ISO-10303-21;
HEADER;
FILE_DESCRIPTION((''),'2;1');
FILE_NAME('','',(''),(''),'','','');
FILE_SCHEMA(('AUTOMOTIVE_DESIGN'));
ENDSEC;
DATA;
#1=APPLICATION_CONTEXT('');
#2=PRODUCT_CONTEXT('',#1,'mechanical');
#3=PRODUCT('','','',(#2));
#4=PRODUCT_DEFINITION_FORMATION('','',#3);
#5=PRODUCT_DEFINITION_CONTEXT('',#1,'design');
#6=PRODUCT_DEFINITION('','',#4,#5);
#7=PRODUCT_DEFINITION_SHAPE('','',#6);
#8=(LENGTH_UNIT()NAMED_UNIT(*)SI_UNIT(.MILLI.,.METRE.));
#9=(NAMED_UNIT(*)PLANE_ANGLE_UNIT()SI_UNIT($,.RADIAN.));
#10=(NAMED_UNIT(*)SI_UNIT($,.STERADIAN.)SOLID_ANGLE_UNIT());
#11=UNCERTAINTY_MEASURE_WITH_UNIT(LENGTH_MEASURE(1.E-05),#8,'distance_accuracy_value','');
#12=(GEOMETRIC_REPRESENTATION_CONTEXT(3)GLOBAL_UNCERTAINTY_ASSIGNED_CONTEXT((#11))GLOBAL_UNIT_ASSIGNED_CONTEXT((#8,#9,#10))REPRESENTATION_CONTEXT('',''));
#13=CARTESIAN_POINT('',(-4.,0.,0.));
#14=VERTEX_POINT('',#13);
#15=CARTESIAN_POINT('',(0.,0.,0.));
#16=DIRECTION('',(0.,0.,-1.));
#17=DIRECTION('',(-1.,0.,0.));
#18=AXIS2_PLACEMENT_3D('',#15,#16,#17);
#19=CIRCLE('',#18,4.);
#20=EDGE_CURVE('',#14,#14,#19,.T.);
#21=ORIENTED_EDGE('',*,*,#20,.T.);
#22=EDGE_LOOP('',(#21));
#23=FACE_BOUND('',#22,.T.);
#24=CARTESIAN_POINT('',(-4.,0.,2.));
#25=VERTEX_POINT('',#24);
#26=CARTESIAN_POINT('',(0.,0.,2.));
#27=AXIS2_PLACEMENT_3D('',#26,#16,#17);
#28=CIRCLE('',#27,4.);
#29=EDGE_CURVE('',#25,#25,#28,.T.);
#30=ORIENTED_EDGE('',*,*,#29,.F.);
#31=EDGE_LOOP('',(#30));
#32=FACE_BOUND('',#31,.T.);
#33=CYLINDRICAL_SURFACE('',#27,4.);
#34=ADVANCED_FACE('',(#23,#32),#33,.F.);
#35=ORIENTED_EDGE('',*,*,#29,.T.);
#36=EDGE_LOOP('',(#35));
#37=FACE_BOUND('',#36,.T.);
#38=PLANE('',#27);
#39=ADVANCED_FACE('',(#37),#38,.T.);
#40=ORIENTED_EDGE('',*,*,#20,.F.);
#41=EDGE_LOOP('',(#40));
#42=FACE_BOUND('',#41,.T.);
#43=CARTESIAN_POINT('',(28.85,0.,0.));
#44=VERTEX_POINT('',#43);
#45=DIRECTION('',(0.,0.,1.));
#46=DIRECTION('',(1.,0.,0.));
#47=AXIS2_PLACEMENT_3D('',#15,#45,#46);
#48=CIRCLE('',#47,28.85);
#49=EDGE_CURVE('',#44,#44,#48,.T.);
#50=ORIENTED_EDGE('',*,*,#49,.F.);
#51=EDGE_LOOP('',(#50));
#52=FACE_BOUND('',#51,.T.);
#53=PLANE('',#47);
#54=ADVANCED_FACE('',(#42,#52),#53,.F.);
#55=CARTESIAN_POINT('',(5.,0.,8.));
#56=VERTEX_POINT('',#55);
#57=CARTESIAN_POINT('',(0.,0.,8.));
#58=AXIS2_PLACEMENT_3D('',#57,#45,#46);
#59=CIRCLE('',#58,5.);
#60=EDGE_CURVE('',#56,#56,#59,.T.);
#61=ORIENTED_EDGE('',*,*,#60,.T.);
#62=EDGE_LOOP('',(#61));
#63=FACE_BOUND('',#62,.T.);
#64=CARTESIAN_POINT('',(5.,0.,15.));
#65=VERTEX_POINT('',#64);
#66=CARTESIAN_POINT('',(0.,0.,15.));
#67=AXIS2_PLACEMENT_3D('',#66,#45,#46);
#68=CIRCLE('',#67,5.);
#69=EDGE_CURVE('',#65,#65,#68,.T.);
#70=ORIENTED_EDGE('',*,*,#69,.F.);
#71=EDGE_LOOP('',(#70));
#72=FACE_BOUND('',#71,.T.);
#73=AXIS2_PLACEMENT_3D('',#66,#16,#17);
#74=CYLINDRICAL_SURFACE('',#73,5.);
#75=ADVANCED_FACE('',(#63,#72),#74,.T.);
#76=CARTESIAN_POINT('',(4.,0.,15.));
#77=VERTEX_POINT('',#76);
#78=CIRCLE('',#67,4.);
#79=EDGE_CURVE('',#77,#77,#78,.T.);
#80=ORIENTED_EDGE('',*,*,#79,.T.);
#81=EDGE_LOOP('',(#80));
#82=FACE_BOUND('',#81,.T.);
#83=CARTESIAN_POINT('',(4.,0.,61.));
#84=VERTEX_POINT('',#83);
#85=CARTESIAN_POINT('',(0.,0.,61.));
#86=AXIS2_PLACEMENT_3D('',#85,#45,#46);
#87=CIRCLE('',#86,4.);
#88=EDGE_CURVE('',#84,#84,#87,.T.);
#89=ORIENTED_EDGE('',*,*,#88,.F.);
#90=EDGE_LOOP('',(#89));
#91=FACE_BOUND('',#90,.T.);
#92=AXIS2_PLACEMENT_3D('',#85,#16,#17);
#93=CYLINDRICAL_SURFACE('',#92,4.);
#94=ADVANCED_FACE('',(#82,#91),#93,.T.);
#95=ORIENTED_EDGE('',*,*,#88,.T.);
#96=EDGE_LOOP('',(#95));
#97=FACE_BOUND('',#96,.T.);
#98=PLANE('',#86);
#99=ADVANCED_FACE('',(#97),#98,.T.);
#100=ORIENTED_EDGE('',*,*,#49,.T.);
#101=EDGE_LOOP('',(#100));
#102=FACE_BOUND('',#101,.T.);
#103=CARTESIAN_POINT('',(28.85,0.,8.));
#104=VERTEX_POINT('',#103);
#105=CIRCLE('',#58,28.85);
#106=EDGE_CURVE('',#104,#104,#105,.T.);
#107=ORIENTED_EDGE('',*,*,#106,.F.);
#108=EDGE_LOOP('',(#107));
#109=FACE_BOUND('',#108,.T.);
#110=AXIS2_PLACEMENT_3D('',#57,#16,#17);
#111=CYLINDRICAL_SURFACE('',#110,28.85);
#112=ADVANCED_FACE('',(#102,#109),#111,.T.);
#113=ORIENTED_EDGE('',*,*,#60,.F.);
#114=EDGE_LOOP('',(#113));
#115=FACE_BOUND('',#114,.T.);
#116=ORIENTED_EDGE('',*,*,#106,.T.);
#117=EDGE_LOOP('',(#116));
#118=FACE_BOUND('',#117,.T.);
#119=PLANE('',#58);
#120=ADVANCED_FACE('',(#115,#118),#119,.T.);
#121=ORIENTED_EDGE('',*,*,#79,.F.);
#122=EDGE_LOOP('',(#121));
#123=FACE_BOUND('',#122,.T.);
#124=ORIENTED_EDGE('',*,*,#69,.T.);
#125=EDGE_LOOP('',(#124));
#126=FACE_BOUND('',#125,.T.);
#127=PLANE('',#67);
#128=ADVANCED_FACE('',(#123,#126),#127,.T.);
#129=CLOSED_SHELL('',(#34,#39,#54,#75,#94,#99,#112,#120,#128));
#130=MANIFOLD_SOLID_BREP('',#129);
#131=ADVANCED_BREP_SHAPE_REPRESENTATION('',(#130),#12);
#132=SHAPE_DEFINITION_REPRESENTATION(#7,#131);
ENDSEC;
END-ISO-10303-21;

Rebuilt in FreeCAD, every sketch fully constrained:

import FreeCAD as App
import Part
import Sketcher

V = App.Vector

doc = App.newDocument("Part")
body = doc.addObject("PartDesign::Body", "Body")

sketch1 = doc.addObject("Sketcher::SketchObject", "Sketch")
body.addObject(sketch1)
sketch1.AttachmentSupport = (doc.XY_Plane, [""])
sketch1.MapMode = "FlatFace"
sketch1.addGeometry(Part.Circle(V(0, 0, 0), V(0, 0, 1), 28.85), False)
sketch1.addConstraint([
    Sketcher.Constraint("Coincident", 0, 3, -1, 1),
    Sketcher.Constraint("Diameter", 0, 57.7),
])
pad1 = doc.addObject("PartDesign::Pad", "Pad")
body.addObject(pad1)
pad1.Profile = sketch1
pad1.Length = 8

sketch2 = doc.addObject("Sketcher::SketchObject", "Sketch001")
body.addObject(sketch2)
sketch2.AttachmentSupport = (doc.XY_Plane, [""])
sketch2.MapMode = "FlatFace"
sketch2.addGeometry(Part.Circle(V(0, 0, 0), V(0, 0, 1), 4), False)
sketch2.addConstraint([
    Sketcher.Constraint("Coincident", 0, 3, -1, 1),
    Sketcher.Constraint("Diameter", 0, 8.0),
])
pocket1 = doc.addObject("PartDesign::Pocket", "Pocket")
body.addObject(pocket1)
pocket1.Profile = sketch2
pocket1.Length = 2
pocket1.Reversed = True

sketch3 = doc.addObject("Sketcher::SketchObject", "Sketch002")
body.addObject(sketch3)
sketch3.AttachmentSupport = (doc.XY_Plane, [""])
sketch3.MapMode = "FlatFace"
sketch3.AttachmentOffset = App.Placement(V(0, 0, 8), App.Rotation())
sketch3.addGeometry([
    Part.Circle(V(0, 0, 0), V(0, 0, 1), 5),
    Part.Circle(V(0, 0, 0), V(0, 0, 1), 4),
], False)
sketch3.addConstraint([
    Sketcher.Constraint("Coincident", 0, 3, -1, 1),
    Sketcher.Constraint("Coincident", 1, 3, -1, 1),
    Sketcher.Constraint("Diameter", 0, 10.0),
    Sketcher.Constraint("Diameter", 1, 8.0),
])
pad2 = doc.addObject("PartDesign::Pad", "Pad001")
body.addObject(pad2)
pad2.Profile = sketch3
pad2.Length = 7

sketch4 = doc.addObject("Sketcher::SketchObject", "Sketch003")
body.addObject(sketch4)
sketch4.AttachmentSupport = (doc.XY_Plane, [""])
sketch4.MapMode = "FlatFace"
sketch4.AttachmentOffset = App.Placement(V(0, 0, 8), App.Rotation())
sketch4.addGeometry([
    Part.Circle(V(0, 0, 0), V(0, 0, 1), 5),
    Part.Circle(V(0, 0, 0), V(0, 0, 1), 4),
], False)
sketch4.addConstraint([
    Sketcher.Constraint("Coincident", 0, 3, -1, 1),
    Sketcher.Constraint("Coincident", 1, 3, -1, 1),
    Sketcher.Constraint("Diameter", 0, 10.0),
    Sketcher.Constraint("Diameter", 1, 8.0),
])
pad3 = doc.addObject("PartDesign::Pad", "Pad002")
body.addObject(pad3)
pad3.Profile = sketch4
pad3.Length = 2

sketch5 = doc.addObject("Sketcher::SketchObject", "Sketch004")
body.addObject(sketch5)
sketch5.AttachmentSupport = (doc.XY_Plane, [""])
sketch5.MapMode = "FlatFace"
sketch5.AttachmentOffset = App.Placement(V(0, 0, 8), App.Rotation())
sketch5.addGeometry([
    Part.Circle(V(0, 0, 0), V(0, 0, 1), 5),
    Part.Circle(V(0, 0, 0), V(0, 0, 1), 4),
], False)
sketch5.addConstraint([
    Sketcher.Constraint("Coincident", 0, 3, -1, 1),
    Sketcher.Constraint("Coincident", 1, 3, -1, 1),
    Sketcher.Constraint("Diameter", 0, 10.0),
    Sketcher.Constraint("Diameter", 1, 8.0),
])
pad4 = doc.addObject("PartDesign::Pad", "Pad003")
body.addObject(pad4)
pad4.Profile = sketch5
pad4.Length = 4

sketch6 = doc.addObject("Sketcher::SketchObject", "Sketch005")
body.addObject(sketch6)
sketch6.AttachmentSupport = (doc.XY_Plane, [""])
sketch6.MapMode = "FlatFace"
sketch6.AttachmentOffset = App.Placement(V(0, 0, 8), App.Rotation())
sketch6.addGeometry(Part.Circle(V(0, 0, 0), V(0, 0, 1), 4), False)
sketch6.addConstraint([
    Sketcher.Constraint("Coincident", 0, 3, -1, 1),
    Sketcher.Constraint("Diameter", 0, 8.0),
])
pad5 = doc.addObject("PartDesign::Pad", "Pad004")
body.addObject(pad5)
pad5.Profile = sketch6
pad5.Length = 53

doc.recompute()
